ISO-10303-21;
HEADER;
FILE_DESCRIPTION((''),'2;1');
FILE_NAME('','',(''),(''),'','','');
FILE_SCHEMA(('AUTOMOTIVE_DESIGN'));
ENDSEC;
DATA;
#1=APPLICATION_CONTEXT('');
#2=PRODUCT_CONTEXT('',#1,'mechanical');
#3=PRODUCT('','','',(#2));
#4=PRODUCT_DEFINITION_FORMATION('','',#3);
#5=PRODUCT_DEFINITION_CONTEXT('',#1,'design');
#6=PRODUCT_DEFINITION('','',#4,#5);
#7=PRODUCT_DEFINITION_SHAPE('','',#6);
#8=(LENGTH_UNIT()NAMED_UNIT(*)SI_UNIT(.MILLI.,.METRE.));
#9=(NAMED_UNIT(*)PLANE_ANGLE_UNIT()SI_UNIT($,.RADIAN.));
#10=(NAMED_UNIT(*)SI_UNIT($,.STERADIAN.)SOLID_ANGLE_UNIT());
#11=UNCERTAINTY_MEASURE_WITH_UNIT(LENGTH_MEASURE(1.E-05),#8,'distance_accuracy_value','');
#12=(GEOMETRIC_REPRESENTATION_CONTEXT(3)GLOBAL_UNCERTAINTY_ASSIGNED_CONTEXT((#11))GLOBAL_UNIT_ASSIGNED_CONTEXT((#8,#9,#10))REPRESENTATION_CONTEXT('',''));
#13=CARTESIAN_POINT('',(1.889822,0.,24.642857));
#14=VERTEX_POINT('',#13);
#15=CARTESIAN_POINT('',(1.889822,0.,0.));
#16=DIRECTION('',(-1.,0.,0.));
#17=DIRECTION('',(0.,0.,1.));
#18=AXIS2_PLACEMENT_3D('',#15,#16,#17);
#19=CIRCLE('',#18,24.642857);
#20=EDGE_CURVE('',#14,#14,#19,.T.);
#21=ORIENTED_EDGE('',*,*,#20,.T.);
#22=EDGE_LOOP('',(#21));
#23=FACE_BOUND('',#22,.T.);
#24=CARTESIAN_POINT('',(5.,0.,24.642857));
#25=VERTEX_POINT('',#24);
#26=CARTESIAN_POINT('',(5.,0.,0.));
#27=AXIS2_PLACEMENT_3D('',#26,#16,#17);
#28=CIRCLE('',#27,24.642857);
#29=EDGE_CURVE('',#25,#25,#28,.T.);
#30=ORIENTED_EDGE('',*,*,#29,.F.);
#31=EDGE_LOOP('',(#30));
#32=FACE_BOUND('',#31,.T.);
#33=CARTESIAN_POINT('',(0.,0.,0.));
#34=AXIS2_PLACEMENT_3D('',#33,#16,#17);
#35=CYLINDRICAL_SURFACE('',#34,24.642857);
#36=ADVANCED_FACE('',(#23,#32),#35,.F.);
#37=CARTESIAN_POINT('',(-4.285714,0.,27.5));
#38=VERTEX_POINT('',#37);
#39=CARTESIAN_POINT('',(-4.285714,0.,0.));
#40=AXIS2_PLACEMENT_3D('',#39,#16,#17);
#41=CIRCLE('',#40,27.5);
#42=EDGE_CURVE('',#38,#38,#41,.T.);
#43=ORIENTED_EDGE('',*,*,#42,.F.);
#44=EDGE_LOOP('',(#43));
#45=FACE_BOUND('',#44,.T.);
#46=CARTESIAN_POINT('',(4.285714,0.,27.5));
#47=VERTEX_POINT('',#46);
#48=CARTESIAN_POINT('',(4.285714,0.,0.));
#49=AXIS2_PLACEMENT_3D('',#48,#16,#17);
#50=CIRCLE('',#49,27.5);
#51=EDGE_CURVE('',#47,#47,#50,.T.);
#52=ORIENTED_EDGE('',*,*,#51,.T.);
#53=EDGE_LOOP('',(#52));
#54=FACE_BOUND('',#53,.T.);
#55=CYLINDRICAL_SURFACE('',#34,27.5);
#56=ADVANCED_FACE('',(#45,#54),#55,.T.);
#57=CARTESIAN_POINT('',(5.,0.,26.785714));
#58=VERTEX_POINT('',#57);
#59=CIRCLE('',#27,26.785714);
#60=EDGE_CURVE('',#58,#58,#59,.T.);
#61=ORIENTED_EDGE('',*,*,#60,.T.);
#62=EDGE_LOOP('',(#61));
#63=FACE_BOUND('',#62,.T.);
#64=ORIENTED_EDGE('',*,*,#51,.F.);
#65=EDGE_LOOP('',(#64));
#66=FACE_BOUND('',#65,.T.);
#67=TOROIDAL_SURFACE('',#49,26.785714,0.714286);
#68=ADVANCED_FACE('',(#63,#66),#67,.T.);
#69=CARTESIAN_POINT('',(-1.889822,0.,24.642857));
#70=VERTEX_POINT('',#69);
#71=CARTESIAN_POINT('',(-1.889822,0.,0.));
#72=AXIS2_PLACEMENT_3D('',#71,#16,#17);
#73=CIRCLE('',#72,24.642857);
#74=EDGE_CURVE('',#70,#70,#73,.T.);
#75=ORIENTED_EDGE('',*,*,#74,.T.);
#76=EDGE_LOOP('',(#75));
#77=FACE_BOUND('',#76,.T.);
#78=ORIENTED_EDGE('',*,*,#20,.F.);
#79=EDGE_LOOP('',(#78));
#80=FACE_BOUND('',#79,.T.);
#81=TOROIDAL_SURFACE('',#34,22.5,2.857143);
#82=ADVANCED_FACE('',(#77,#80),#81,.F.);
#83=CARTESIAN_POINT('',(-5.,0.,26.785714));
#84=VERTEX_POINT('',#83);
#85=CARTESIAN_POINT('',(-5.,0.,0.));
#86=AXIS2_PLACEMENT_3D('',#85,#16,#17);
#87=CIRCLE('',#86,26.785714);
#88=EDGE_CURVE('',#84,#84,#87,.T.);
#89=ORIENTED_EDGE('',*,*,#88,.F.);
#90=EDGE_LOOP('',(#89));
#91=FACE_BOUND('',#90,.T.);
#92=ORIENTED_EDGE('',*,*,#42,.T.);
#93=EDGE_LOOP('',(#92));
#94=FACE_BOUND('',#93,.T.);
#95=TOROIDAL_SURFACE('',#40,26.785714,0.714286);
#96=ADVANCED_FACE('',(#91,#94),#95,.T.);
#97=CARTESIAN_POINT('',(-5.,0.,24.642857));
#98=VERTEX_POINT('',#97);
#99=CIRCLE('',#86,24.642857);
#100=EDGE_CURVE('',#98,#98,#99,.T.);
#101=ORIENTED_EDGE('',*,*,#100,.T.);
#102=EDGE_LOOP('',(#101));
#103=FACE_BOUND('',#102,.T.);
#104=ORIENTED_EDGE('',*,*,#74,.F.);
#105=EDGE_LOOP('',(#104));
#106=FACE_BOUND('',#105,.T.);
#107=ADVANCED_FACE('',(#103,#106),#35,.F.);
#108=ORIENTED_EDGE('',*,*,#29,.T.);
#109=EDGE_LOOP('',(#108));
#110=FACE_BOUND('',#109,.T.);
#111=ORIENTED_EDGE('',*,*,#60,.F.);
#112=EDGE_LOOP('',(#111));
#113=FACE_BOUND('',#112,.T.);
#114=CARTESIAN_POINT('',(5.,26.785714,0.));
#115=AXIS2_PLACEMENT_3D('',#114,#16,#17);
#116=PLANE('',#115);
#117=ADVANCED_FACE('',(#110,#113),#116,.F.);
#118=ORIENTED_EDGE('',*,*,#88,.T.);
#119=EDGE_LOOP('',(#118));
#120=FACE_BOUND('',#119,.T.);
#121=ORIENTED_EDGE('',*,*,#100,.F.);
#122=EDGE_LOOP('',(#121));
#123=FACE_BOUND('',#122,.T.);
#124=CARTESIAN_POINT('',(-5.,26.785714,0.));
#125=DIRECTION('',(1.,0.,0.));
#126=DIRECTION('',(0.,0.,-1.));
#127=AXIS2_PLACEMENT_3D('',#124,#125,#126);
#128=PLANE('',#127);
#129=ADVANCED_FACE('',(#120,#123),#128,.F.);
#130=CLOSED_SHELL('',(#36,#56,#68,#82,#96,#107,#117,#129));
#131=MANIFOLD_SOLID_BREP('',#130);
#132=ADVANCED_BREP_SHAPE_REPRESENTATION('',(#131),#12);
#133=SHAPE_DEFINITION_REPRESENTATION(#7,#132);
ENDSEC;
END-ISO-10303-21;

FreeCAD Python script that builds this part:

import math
import FreeCAD as App
import Part
import Sketcher

V = App.Vector
Q = App.Units.Quantity

doc = App.newDocument("Part")
body = doc.addObject("PartDesign::Body", "Body")

sketch1 = body.newObject("Sketcher::SketchObject", "Sketch")
sketch1.AttachmentSupport = (doc.getObject("XY_Plane"), [""])
sketch1.MapMode = "FlatFace"
sketch1.addGeometry(Part.LineSegment(V(4.3, 27.5, 0), V(-4.3, 27.5, 0)), False)
sketch1.addGeometry(Part.ArcOfCircle(Part.Circle(V(-4.3, 26.8, 0), V(0, 0, 1), 0.7), math.radians(90), math.radians(180)), False)
sketch1.addGeometry(Part.LineSegment(V(-5, 26.8, 0), V(-5, 24.6, 0)), False)
sketch1.addGeometry(Part.LineSegment(V(-5, 24.6, 0), V(-1.9, 24.6, 0)), False)
sketch1.addGeometry(Part.ArcOfCircle(Part.Circle(V(0, 22.5, 0), V(0, 0, 1), 2.9), math.radians(49), math.radians(131)), False)
sketch1.addGeometry(Part.LineSegment(V(1.9, 24.6, 0), V(5, 24.6, 0)), False)
sketch1.addGeometry(Part.LineSegment(V(5, 24.6, 0), V(5, 26.8, 0)), False)
sketch1.addGeometry(Part.ArcOfCircle(Part.Circle(V(4.3, 26.8, 0), V(0, 0, 1), 0.7), math.radians(0), math.radians(90)), False)
sketch1.addConstraint(Sketcher.Constraint("Tangent", 0, 2, 1, 1))
sketch1.addConstraint(Sketcher.Constraint("Tangent", 1, 2, 2, 1))
sketch1.addConstraint(Sketcher.Constraint("Coincident", 2, 2, 3, 1))
sketch1.addConstraint(Sketcher.Constraint("Coincident", 3, 2, 4, 2))
sketch1.addConstraint(Sketcher.Constraint("Coincident", 4, 1, 5, 1))
sketch1.addConstraint(Sketcher.Constraint("Coincident", 5, 2, 6, 1))
sketch1.addConstraint(Sketcher.Constraint("Tangent", 6, 2, 7, 1))
sketch1.addConstraint(Sketcher.Constraint("Tangent", 7, 2, 0, 1))
sketch1.addConstraint(Sketcher.Constraint("Horizontal", 0))
sketch1.addConstraint(Sketcher.Constraint("Vertical", 2))
sketch1.addConstraint(Sketcher.Constraint("Horizontal", 3))
sketch1.addConstraint(Sketcher.Constraint("Horizontal", 5))
sketch1.addConstraint(Sketcher.Constraint("Vertical", 6))
sketch1.addConstraint(Sketcher.Constraint("Equal", 1, 7))
sketch1.addConstraint(Sketcher.Constraint("Symmetric", 3, 2, 4, 1, -2))
sketch1.addConstraint(Sketcher.Constraint("Equal", 3, 5))
sketch1.addConstraint(Sketcher.Constraint("DistanceX", 1, 2, -1, 1, Q("5 mm")))
sketch1.addConstraint(Sketcher.Constraint("DistanceY", 4, 3, 0, 2, Q("5 mm")))
sketch1.addConstraint(Sketcher.Constraint("DistanceY", -1, 1, 4, 3, Q("22.5 mm")))
sketch1.addConstraint(Sketcher.Constraint("Radius", 1, Q("0.714286 mm")))
sketch1.addConstraint(Sketcher.Constraint("Radius", 4, Q("2.857143 mm")))
sketch1.addConstraint(Sketcher.Constraint("DistanceX", 3, 1, 3, 2, Q("3.110178 mm")))
revolution = body.newObject("PartDesign::Revolution", "Revolution")
revolution.Profile = sketch1
revolution.ReferenceAxis = (sketch1, ["H_Axis"])
revolution.Angle = 360

doc.recompute()
